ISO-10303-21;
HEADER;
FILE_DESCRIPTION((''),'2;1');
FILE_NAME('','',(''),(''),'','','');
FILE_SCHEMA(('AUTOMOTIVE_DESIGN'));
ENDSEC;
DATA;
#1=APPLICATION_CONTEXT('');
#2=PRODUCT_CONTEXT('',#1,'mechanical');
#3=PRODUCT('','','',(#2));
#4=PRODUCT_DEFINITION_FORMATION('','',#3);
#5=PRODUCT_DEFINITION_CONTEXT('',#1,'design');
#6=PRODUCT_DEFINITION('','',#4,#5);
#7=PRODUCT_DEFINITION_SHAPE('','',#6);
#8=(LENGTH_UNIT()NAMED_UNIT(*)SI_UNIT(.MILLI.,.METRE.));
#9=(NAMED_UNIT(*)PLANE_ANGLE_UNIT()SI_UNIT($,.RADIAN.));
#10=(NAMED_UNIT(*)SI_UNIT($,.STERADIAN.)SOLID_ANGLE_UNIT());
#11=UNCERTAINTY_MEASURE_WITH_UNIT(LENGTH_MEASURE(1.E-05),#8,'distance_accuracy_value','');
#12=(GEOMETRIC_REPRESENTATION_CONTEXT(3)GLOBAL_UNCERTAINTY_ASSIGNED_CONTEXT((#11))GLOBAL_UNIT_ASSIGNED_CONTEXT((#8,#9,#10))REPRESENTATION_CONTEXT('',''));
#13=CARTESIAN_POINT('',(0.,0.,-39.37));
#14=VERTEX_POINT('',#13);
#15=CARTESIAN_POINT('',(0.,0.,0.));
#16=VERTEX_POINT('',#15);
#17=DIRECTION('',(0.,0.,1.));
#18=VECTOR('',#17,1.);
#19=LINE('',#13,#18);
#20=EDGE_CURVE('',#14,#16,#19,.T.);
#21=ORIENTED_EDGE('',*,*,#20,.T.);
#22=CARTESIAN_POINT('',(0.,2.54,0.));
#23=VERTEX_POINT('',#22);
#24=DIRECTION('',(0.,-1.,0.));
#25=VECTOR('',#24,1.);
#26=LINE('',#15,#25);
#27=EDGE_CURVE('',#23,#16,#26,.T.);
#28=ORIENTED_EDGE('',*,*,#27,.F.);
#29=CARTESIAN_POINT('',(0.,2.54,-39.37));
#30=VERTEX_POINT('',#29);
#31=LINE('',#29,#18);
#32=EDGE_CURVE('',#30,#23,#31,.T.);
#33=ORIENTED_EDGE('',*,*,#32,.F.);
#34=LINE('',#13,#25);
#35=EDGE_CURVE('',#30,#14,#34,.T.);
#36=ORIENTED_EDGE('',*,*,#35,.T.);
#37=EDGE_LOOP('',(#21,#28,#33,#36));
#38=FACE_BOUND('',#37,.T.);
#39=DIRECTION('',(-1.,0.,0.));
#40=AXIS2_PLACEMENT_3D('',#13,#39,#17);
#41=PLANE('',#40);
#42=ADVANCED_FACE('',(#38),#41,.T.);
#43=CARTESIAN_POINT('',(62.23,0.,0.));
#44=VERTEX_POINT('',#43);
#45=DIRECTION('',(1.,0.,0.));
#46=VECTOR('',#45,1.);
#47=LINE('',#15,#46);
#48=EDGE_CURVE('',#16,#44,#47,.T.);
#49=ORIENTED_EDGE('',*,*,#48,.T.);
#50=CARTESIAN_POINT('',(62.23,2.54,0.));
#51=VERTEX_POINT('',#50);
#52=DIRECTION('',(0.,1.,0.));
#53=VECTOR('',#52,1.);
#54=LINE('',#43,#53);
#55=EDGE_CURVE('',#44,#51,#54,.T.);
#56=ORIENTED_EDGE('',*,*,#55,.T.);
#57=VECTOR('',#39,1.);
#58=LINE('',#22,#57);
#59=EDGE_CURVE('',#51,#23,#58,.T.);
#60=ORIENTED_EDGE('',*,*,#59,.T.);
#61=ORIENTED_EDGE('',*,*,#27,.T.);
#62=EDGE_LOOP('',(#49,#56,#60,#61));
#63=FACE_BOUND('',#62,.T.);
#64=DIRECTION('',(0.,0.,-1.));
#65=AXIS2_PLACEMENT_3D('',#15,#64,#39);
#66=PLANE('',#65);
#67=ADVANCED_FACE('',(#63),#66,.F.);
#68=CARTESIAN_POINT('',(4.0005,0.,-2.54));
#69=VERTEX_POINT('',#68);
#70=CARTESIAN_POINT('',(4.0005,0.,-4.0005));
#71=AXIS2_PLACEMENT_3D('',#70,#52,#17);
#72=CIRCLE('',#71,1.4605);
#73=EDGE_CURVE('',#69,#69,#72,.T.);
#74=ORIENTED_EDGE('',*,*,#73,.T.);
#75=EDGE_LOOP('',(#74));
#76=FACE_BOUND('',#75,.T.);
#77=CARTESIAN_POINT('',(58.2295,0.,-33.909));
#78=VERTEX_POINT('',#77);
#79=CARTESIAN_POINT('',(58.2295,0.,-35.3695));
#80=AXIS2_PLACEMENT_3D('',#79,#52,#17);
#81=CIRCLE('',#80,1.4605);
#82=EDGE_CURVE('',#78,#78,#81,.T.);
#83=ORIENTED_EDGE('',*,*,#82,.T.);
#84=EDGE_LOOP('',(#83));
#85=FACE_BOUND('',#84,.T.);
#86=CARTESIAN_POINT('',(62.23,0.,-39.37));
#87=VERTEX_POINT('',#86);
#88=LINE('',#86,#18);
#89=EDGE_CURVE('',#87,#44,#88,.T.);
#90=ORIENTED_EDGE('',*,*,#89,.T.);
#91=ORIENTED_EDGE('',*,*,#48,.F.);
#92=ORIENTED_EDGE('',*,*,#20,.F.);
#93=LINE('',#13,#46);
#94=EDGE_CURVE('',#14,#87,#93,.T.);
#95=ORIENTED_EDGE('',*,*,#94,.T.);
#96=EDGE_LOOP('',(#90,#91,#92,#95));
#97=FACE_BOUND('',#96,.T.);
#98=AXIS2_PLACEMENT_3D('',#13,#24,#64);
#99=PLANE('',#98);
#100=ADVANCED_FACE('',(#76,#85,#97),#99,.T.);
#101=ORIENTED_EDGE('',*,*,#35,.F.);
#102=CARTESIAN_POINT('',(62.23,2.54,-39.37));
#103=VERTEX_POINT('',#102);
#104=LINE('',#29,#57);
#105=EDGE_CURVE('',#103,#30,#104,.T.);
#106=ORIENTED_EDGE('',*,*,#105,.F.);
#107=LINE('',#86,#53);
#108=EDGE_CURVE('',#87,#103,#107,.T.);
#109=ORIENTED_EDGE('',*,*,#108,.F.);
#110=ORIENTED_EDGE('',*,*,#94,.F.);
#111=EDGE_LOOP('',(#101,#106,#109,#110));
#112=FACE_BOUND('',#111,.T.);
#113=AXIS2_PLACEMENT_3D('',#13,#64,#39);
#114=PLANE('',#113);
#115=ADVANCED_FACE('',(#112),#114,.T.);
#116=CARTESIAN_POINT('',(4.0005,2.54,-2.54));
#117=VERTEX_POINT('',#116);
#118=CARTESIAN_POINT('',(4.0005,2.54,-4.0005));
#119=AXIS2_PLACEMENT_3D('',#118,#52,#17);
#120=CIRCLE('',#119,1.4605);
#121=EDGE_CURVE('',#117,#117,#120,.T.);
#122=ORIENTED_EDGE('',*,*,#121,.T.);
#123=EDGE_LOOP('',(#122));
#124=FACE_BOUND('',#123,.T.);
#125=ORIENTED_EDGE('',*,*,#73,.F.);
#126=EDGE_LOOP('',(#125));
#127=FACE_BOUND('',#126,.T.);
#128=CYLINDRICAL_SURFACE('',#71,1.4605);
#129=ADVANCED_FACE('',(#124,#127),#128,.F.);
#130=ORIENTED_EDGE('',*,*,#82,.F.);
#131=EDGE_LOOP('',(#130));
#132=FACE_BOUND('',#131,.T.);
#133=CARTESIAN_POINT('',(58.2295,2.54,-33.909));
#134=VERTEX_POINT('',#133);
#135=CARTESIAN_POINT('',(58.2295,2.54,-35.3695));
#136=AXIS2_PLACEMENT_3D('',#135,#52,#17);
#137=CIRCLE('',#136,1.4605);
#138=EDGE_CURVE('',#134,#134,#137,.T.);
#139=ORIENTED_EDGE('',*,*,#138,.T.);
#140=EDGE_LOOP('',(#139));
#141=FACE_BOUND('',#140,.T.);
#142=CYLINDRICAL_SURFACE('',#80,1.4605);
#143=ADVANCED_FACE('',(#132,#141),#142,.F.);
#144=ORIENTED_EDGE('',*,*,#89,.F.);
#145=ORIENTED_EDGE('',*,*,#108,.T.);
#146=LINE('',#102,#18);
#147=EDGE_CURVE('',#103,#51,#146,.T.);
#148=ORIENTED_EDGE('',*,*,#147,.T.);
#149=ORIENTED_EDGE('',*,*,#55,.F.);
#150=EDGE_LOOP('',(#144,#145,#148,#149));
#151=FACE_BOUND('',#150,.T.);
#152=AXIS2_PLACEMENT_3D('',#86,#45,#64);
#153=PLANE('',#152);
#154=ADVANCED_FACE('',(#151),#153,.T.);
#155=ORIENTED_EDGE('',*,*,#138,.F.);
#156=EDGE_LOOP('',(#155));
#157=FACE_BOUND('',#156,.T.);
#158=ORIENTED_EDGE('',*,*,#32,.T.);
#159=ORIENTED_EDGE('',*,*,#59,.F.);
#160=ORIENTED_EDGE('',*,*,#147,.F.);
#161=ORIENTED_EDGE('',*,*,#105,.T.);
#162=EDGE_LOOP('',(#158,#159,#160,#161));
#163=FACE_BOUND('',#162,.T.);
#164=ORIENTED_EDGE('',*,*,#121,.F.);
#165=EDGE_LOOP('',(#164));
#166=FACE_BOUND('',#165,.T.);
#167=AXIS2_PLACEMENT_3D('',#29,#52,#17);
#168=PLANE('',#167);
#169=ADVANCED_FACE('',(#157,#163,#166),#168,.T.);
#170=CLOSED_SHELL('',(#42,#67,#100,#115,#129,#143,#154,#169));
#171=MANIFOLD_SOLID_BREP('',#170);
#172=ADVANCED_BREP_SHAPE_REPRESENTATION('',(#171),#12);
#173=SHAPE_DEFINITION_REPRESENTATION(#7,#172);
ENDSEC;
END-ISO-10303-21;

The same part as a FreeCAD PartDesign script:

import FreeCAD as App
import Part
import Sketcher

V = App.Vector
Q = App.Units.Quantity


def add_polygon(sketch, points):
    """Adds a closed chain of lines whose ends are joined by coincident constraints."""
    first, n = sketch.GeometryCount, len(points)
    for a, b in zip(points, points[1:] + points[:1]):
        sketch.addGeometry(Part.LineSegment(App.Vector(*a, 0), App.Vector(*b, 0)), False)
    for i in range(n):
        sketch.addConstraint(Sketcher.Constraint("Coincident", first + i, 2, first + (i + 1) % n, 1))

doc = App.newDocument("Part")
body = doc.addObject("PartDesign::Body", "Body")

# Sketch on XY plane
sketch1 = body.newObject("Sketcher::SketchObject", "Sketch")
sketch1.AttachmentSupport = (doc.getObject("XY_Plane"), [""])
sketch1.MapMode = "FlatFace"
add_polygon(sketch1, [(0, 2.5), (0, 0), (62.2, 0), (62.2, 2.5)])  # lines 0-3
sketch1.addConstraint([
    Sketcher.Constraint("Vertical", 0),
    Sketcher.Constraint("Horizontal", 1),
    Sketcher.Constraint("Vertical", 2),
    Sketcher.Constraint("Horizontal", 3),
    Sketcher.Constraint("Coincident", 0, 2, -1, 1),
    Sketcher.Constraint("DistanceY", 0, 2, 0, 1, Q("0.1 in")),
    Sketcher.Constraint("DistanceX", 1, 1, 1, 2, Q("2.45 in")),
])
pad1 = body.newObject("PartDesign::Pad", "Pad")
pad1.Profile = sketch1
pad1.Length = Q("1.55 in")
pad1.Reversed = True

# Sketch on XZ plane
sketch2 = body.newObject("Sketcher::SketchObject", "Sketch001")
sketch2.AttachmentSupport = (doc.getObject("XZ_Plane"), [""])
sketch2.MapMode = "FlatFace"
sketch2.AttachmentOffset = App.Placement(V(0, 0, -0.1 * 25.4), App.Rotation())
sketch2.addGeometry([
    Part.Circle(V(4, -4, 0), V(0, 0, 1), 1.5),
    Part.Circle(V(58.2, -35.4, 0), V(0, 0, 1), 1.5),
], False)
sketch2.addConstraint([
    Sketcher.Constraint("Equal", 0, 1),
    Sketcher.Constraint("Diameter", 0, Q("0.115 in")),
    Sketcher.Constraint("DistanceX", 0, 3, 1, 3, Q("2.135 in")),
    Sketcher.Constraint("DistanceY", 1, 3, 0, 3, Q("1.235 in")),
    Sketcher.Constraint("DistanceX", -1, 1, 0, 3, Q("0.1575 in")),
    Sketcher.Constraint("DistanceY", 0, 3, -1, 1, Q("0.1575 in")),
])
pocket1 = body.newObject("PartDesign::Pocket", "Pocket")
pocket1.Profile = sketch2
pocket1.Type = "ThroughAll"
pocket1.Reversed = True

doc.recompute()
